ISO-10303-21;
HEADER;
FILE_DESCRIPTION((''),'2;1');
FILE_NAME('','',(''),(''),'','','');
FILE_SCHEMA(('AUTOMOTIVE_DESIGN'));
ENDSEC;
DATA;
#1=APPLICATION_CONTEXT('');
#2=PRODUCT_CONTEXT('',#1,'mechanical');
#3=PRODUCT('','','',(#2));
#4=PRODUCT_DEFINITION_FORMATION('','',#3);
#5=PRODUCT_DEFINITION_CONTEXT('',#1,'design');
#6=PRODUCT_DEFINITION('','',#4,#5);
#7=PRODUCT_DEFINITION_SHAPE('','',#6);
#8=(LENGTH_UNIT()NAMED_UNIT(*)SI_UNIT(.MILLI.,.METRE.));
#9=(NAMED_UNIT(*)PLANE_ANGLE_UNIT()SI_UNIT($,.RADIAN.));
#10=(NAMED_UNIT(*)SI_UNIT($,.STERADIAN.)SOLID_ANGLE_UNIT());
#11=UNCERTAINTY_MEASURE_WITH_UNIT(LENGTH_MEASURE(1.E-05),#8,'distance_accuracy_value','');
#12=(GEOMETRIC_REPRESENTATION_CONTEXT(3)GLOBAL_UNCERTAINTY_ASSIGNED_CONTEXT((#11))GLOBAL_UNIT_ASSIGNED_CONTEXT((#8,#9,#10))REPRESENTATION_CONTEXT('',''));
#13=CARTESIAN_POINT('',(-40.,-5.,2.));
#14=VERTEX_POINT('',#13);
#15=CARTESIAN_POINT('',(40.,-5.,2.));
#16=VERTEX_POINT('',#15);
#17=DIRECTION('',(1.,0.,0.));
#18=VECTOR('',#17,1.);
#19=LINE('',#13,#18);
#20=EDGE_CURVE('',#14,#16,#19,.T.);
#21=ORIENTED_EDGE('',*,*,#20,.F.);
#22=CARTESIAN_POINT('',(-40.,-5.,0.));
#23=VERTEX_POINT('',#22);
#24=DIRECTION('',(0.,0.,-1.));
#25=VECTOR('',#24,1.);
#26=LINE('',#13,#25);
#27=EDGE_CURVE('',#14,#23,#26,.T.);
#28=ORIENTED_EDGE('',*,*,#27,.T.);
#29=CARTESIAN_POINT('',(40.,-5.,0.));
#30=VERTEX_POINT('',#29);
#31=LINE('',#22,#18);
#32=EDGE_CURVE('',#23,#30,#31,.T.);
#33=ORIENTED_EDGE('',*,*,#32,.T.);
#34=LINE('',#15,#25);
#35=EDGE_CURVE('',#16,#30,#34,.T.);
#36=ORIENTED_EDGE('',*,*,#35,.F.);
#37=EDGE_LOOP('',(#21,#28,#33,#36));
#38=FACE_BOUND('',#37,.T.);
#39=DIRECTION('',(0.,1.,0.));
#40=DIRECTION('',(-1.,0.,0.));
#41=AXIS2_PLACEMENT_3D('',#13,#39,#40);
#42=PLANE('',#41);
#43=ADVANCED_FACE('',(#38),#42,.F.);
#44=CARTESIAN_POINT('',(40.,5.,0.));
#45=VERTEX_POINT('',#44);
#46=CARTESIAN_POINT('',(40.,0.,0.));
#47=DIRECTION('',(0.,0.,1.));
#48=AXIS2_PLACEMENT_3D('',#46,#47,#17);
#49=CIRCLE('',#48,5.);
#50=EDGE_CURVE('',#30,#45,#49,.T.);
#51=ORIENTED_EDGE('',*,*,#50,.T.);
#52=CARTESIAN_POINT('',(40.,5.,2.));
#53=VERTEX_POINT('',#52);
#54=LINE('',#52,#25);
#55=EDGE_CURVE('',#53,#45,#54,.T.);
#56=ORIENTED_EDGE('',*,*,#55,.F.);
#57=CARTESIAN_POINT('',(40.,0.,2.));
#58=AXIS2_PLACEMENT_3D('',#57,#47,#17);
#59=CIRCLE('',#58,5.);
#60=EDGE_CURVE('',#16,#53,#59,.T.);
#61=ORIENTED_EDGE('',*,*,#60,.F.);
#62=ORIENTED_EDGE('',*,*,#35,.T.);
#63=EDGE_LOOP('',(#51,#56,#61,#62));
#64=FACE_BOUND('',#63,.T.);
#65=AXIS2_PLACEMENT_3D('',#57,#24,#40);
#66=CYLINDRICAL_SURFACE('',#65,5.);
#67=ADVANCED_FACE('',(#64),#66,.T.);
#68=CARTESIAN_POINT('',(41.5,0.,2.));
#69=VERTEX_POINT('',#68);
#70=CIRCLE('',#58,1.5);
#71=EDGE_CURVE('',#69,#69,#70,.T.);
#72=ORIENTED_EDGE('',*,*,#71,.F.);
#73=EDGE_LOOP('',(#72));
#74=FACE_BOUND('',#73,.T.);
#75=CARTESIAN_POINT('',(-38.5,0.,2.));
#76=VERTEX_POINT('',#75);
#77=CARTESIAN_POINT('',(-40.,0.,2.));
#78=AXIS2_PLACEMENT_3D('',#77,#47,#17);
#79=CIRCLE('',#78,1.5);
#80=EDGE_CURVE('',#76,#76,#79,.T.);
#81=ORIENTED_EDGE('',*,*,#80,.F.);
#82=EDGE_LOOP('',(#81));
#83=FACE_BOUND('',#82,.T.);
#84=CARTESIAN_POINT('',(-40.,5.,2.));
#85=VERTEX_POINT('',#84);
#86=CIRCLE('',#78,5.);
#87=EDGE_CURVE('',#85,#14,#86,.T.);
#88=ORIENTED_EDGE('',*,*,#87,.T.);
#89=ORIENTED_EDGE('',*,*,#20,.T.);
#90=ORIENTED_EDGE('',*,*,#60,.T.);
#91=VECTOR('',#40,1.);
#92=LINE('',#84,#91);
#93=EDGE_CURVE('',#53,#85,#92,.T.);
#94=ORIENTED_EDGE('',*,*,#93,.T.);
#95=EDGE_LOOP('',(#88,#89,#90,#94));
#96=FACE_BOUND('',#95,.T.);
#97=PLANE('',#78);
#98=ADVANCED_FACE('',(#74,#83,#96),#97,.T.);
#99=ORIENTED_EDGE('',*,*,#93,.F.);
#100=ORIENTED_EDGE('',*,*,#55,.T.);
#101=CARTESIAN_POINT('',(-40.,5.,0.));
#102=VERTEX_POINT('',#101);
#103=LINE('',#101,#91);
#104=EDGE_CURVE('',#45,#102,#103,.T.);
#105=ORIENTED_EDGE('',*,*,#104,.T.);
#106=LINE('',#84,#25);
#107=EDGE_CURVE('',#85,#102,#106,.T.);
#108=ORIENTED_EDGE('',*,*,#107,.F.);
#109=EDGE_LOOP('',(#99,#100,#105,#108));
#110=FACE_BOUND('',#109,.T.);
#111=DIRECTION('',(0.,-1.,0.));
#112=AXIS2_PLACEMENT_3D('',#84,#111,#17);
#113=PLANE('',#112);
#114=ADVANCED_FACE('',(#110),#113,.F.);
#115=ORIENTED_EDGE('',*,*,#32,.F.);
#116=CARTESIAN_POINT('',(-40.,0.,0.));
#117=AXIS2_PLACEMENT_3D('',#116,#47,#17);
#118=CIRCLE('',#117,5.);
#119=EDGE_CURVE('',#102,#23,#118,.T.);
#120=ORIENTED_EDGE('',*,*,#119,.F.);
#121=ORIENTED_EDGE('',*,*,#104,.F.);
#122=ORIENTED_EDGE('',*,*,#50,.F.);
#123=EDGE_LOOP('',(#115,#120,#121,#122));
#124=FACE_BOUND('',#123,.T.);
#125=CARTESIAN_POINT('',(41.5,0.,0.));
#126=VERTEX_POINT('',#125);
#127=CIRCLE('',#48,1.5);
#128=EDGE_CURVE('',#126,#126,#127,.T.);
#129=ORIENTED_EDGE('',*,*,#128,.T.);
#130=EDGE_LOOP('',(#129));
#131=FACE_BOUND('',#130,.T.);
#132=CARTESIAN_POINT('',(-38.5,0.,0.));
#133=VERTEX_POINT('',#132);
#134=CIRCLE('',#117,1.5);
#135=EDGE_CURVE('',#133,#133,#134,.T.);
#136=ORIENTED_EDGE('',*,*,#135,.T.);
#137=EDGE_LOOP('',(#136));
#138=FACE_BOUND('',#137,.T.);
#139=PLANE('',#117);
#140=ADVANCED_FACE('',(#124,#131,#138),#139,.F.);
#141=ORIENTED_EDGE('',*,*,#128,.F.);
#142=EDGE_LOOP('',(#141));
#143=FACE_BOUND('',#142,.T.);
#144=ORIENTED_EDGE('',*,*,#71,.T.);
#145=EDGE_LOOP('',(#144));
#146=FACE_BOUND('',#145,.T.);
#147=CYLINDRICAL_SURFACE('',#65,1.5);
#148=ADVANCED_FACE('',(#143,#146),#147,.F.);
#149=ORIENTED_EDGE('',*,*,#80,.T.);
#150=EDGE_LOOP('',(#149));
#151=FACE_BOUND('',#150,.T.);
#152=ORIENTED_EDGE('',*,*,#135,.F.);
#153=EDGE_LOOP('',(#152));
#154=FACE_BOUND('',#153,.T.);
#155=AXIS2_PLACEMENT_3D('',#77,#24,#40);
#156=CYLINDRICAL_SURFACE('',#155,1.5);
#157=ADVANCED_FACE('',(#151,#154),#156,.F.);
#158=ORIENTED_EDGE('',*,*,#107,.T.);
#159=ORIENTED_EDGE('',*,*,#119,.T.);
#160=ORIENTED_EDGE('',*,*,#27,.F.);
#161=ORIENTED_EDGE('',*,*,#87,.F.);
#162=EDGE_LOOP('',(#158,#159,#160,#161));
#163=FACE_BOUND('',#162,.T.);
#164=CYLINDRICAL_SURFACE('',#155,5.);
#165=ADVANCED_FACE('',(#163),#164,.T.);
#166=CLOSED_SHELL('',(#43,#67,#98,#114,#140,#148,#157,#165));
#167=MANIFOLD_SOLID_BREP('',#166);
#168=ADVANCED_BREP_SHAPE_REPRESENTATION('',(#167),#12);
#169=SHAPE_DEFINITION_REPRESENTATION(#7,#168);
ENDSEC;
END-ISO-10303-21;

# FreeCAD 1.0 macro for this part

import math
import FreeCAD as App
import Part
import Sketcher

V = App.Vector

doc = App.newDocument("Part")
body = doc.addObject("PartDesign::Body", "Body")

# Sketch on XY plane
sketch1 = body.newObject("Sketcher::SketchObject", "Sketch")
sketch1.AttachmentSupport = (doc.getObject("XY_Plane"), [""])
sketch1.MapMode = "FlatFace"
sketch1.addGeometry([
    Part.LineSegment(V(40, 5, 0), V(-40, 5, 0)),  # 0
    Part.ArcOfCircle(Part.Circle(V(-40, 0, 0), V(0, 0, 1), 5), math.radians(90), math.radians(270)),  # 1
    Part.LineSegment(V(-40, -5, 0), V(40, -5, 0)),  # 2
    Part.ArcOfCircle(Part.Circle(V(40, 0, 0), V(0, 0, 1), 5), math.radians(-90), math.radians(90)),  # 3
    Part.Circle(V(40, 0, 0), V(0, 0, 1), 1.5),  # 4
    Part.Circle(V(-40, 0, 0), V(0, 0, 1), 1.5),  # 5
], False)
sketch1.addConstraint([
    Sketcher.Constraint("Tangent", 0, 2, 1, 1),
    Sketcher.Constraint("Tangent", 1, 2, 2, 1),
    Sketcher.Constraint("Tangent", 2, 2, 3, 1),
    Sketcher.Constraint("Tangent", 3, 2, 0, 1),
    Sketcher.Constraint("Horizontal", 0),
    Sketcher.Constraint("Horizontal", 2),
    Sketcher.Constraint("Coincident", 4, 3, 3, 3),
    Sketcher.Constraint("Coincident", 5, 3, 1, 3),
    Sketcher.Constraint("Equal", 4, 5),
    Sketcher.Constraint("Symmetric", 1, 3, 3, 3, -1, 1),
    Sketcher.Constraint("Diameter", 4, 3.0),
    Sketcher.Constraint("Radius", 1, 5.0),
    Sketcher.Constraint("DistanceX", 0, 2, 0, 1, 80.0),
])
pad1 = body.newObject("PartDesign::Pad", "Pad")
pad1.Profile = sketch1
pad1.Length = 2

doc.recompute()
